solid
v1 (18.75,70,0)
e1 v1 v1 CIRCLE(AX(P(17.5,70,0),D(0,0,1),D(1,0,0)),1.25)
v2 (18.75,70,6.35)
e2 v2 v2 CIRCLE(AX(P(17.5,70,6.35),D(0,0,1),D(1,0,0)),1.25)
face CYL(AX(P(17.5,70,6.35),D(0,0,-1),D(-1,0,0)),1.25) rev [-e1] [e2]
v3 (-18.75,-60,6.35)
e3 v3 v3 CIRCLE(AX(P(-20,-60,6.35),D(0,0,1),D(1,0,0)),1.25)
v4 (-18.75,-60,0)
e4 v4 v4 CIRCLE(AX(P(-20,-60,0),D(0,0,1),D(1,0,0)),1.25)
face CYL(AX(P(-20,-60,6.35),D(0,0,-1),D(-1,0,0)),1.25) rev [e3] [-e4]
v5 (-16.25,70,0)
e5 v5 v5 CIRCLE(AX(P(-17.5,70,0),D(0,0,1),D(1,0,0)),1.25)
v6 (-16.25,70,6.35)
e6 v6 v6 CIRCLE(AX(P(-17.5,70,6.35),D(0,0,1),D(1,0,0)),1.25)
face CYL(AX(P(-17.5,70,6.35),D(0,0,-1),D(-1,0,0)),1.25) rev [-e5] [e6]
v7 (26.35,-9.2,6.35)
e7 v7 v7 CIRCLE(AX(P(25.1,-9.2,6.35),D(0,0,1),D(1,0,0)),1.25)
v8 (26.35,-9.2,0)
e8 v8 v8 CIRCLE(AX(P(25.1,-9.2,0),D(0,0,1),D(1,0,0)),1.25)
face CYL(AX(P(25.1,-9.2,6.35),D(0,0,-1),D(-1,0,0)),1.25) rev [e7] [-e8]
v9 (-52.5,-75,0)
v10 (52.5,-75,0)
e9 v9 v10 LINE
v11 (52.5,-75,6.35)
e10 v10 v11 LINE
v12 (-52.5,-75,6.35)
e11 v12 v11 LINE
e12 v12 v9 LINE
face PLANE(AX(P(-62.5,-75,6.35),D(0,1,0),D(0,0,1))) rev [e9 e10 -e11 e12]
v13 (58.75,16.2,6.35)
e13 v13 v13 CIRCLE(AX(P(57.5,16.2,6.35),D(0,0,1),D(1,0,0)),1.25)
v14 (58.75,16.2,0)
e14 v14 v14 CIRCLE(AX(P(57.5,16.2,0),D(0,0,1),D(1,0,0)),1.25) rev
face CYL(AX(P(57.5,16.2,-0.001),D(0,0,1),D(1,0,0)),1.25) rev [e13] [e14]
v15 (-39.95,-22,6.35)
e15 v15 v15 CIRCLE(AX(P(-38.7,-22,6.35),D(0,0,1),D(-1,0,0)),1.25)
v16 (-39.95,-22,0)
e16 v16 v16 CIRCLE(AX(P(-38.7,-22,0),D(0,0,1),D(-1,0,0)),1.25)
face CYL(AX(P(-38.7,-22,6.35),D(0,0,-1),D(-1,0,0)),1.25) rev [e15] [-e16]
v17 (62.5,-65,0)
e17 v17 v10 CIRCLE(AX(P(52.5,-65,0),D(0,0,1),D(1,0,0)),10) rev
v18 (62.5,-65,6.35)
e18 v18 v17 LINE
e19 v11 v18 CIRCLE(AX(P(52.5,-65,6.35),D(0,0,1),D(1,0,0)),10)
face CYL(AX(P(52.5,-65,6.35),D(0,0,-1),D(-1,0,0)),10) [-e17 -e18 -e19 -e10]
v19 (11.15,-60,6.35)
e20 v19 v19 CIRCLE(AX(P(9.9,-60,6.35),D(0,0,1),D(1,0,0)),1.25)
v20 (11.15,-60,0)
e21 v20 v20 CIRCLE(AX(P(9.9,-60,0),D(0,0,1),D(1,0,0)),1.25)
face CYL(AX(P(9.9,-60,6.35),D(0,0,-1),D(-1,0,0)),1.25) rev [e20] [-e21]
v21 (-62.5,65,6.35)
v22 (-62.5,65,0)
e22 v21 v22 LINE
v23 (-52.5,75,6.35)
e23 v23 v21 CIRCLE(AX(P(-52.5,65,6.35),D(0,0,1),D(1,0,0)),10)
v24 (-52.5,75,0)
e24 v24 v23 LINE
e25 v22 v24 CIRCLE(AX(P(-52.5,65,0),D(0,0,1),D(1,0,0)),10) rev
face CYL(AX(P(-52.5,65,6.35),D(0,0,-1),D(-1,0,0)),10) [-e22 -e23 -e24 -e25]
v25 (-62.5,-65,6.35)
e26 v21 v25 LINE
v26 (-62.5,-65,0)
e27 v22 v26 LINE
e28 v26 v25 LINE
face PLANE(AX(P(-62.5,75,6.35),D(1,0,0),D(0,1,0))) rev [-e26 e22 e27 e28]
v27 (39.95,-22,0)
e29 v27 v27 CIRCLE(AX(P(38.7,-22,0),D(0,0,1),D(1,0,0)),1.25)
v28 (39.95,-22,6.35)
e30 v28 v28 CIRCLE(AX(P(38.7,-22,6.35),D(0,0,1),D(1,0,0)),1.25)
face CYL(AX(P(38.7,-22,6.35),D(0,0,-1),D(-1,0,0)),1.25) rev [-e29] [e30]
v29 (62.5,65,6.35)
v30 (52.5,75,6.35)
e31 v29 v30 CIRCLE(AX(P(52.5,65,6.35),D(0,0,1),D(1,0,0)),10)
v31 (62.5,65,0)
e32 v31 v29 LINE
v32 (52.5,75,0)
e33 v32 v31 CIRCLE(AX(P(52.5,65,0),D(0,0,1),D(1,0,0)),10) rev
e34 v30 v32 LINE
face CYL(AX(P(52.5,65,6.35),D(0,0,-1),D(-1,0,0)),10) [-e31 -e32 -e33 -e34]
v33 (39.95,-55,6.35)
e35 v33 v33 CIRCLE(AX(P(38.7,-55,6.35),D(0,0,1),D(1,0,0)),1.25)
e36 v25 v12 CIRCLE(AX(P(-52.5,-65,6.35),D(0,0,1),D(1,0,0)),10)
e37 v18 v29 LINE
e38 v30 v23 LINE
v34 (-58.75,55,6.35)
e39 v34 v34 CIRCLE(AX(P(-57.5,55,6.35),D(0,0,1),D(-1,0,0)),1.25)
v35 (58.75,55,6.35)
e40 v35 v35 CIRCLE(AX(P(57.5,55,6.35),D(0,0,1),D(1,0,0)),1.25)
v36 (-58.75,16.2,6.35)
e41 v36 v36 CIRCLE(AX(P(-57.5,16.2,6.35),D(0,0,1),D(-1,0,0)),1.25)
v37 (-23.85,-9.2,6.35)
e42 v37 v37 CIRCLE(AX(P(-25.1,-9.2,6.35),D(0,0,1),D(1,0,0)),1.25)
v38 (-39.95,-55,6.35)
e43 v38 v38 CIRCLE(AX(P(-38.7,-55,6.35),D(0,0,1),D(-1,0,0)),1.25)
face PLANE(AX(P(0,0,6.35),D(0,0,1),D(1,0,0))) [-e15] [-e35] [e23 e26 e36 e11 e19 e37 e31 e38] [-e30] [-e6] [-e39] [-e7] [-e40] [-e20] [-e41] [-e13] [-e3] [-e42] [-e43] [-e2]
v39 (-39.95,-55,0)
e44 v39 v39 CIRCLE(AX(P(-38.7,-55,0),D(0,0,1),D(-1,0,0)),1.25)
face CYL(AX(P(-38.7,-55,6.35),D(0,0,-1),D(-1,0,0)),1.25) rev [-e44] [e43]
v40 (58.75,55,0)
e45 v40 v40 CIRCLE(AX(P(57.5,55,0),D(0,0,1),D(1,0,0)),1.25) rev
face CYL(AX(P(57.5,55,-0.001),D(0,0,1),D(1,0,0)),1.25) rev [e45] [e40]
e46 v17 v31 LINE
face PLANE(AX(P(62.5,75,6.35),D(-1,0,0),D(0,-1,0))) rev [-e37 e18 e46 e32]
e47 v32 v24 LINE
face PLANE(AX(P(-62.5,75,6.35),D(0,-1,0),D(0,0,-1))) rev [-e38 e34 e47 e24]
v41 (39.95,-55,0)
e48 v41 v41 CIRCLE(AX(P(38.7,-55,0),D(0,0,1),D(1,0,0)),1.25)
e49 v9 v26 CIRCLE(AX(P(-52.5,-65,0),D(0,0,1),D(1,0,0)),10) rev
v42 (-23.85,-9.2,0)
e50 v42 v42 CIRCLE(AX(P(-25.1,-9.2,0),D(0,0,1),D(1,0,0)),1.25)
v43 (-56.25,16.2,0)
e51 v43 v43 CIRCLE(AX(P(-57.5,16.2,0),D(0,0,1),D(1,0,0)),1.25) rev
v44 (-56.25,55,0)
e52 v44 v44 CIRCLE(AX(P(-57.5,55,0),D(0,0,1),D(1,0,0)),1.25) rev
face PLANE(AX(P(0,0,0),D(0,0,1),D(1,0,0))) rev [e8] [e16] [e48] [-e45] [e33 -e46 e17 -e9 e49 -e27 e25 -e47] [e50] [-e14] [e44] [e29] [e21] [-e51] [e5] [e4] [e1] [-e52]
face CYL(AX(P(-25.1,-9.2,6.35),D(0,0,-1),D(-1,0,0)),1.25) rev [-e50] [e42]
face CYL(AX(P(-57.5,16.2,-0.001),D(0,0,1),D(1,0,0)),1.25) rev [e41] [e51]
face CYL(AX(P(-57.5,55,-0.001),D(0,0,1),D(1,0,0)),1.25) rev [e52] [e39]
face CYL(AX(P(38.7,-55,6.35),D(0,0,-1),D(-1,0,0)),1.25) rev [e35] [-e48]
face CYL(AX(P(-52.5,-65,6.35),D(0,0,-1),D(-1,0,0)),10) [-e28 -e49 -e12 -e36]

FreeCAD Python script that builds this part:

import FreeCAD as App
import Part
import Sketcher
Q = App.Units.Quantity


def edges_at(feature, points):
    """Names of the edges that pass closest to the given points."""
    edges = feature.Shape.Edges
    near = lambda p: min(range(len(edges)), key=lambda i: edges[i].distToShape(Part.Vertex(*p))[0])
    return sorted({f"Edge{near(p) + 1}" for p in points})


def add_polygon(sketch, points):
    """Adds a closed chain of lines whose ends are joined by coincident constraints."""
    first, n = sketch.GeometryCount, len(points)
    for a, b in zip(points, points[1:] + points[:1]):
        sketch.addGeometry(Part.LineSegment(App.Vector(*a, 0), App.Vector(*b, 0)), False)
    for i in range(n):
        sketch.addConstraint(Sketcher.Constraint("Coincident", first + i, 2, first + (i + 1) % n, 1))

doc = App.newDocument("Part")
body = doc.addObject("PartDesign::Body", "Body")

sketch1 = doc.addObject("Sketcher::SketchObject", "Sketch")
body.addObject(sketch1)
sketch1.AttachmentSupport = (doc.XY_Plane, [""])
sketch1.MapMode = "FlatFace"
add_polygon(sketch1, [(-62.5, 75), (-62.5, -75), (62.5, -75), (62.5, 75)])
sketch1.addGeometry(Part.Circle(App.Vector(-38.7, -55, 0), App.Vector(0, 0, 1), 1.2), False)
sketch1.addGeometry(Part.Circle(App.Vector(-20, -60, 0), App.Vector(0, 0, 1), 1.2), False)
sketch1.addGeometry(Part.Circle(App.Vector(-38.7, -22, 0), App.Vector(0, 0, 1), 1.2), False)
sketch1.addGeometry(Part.Circle(App.Vector(-25.1, -9.2, 0), App.Vector(0, 0, 1), 1.2), False)
sketch1.addGeometry(Part.Circle(App.Vector(9.9, -60, 0), App.Vector(0, 0, 1), 1.2), False)
sketch1.addGeometry(Part.Circle(App.Vector(38.7, -55, 0), App.Vector(0, 0, 1), 1.2), False)
sketch1.addGeometry(Part.Circle(App.Vector(38.7, -22, 0), App.Vector(0, 0, 1), 1.2), False)
sketch1.addGeometry(Part.Circle(App.Vector(25.1, -9.2, 0), App.Vector(0, 0, 1), 1.2), False)
sketch1.addGeometry(Part.Circle(App.Vector(-17.5, 70, 0), App.Vector(0, 0, 1), 1.2), False)
sketch1.addGeometry(Part.Circle(App.Vector(17.5, 70, 0), App.Vector(0, 0, 1), 1.2), False)
sketch1.addConstraint(Sketcher.Constraint("Vertical", 0))
sketch1.addConstraint(Sketcher.Constraint("Horizontal", 1))
sketch1.addConstraint(Sketcher.Constraint("Vertical", 2))
sketch1.addConstraint(Sketcher.Constraint("Horizontal", 3))
sketch1.addConstraint(Sketcher.Constraint("Equal", 4, 5))
sketch1.addConstraint(Sketcher.Constraint("Equal", 5, 6))
sketch1.addConstraint(Sketcher.Constraint("Equal", 6, 7))
sketch1.addConstraint(Sketcher.Constraint("Equal", 7, 8))
sketch1.addConstraint(Sketcher.Constraint("Equal", 8, 9))
sketch1.addConstraint(Sketcher.Constraint("Equal", 9, 10))
sketch1.addConstraint(Sketcher.Constraint("Equal", 10, 11))
sketch1.addConstraint(Sketcher.Constraint("Equal", 11, 12))
sketch1.addConstraint(Sketcher.Constraint("Equal", 12, 13))
sketch1.addConstraint(Sketcher.Constraint("Symmetric", 0, 2, 2, 2, -1, 1))
sketch1.addConstraint(Sketcher.Constraint("Symmetric", 4, 3, 9, 3, -2))
sketch1.addConstraint(Sketcher.Constraint("Symmetric", 6, 3, 10, 3, -2))
sketch1.addConstraint(Sketcher.Constraint("Symmetric", 7, 3, 11, 3, -2))
sketch1.addConstraint(Sketcher.Constraint("Symmetric", 12, 3, 13, 3, -2))
sketch1.addConstraint(Sketcher.Constraint("Horizontal", 5, 3, 8, 3))
sketch1.addConstraint(Sketcher.Constraint("Vertical", 4, 3, 6, 3))
sketch1.addConstraint(Sketcher.Constraint("Diameter", 4, Q("2.5 mm")))
sketch1.addConstraint(Sketcher.Constraint("DistanceX", 1, 1, 1, 2, Q("125 mm")))
sketch1.addConstraint(Sketcher.Constraint("DistanceY", 0, 2, 0, 1, Q("150 mm")))
sketch1.addConstraint(Sketcher.Constraint("DistanceY", 4, 3, -1, 1, Q("55 mm")))
sketch1.addConstraint(Sketcher.Constraint("DistanceX", 5, 3, -1, 1, Q("20 mm")))
sketch1.addConstraint(Sketcher.Constraint("DistanceY", 5, 3, -1, 1, Q("60 mm")))
sketch1.addConstraint(Sketcher.Constraint("DistanceY", 6, 3, -1, 1, Q("22 mm")))
sketch1.addConstraint(Sketcher.Constraint("DistanceY", -1, 1, 12, 3, Q("70 mm")))
sketch1.addConstraint(Sketcher.Constraint("DistanceX", 7, 3, 8, 3, Q("35 mm")))
sketch1.addConstraint(Sketcher.Constraint("DistanceX", 12, 3, 13, 3, Q("35 mm")))
sketch1.addConstraint(Sketcher.Constraint("DistanceX", 4, 3, -1, 1, Q("38.7 mm")))
sketch1.addConstraint(Sketcher.Constraint("DistanceX", 7, 3, -1, 1, Q("25.1 mm")))
sketch1.addConstraint(Sketcher.Constraint("DistanceY", 7, 3, -1, 1, Q("9.2 mm")))
pad1 = doc.addObject("PartDesign::Pad", "Pad")
body.addObject(pad1)
pad1.Profile = sketch1
pad1.Length = 6.35
doc.recompute()

fillet = doc.addObject("PartDesign::Fillet", "Fillet")
body.addObject(fillet)
fillet.Base = (pad1, edges_at(pad1, [
    (62.5, -75, 3.175),
    (-62.5, -75, 3.175),
    (-62.5, 75, 3.175),
    (62.5, 75, 3.175),
]))
fillet.Radius = 10

sketch2 = doc.addObject("Sketcher::SketchObject", "Sketch001")
body.addObject(sketch2)
sketch2.AttachmentSupport = (doc.XY_Plane, [""])
sketch2.MapMode = "FlatFace"
sketch2.AttachmentOffset = App.Placement(App.Vector(0, 0, 6.35), App.Rotation())
sketch2.addGeometry(Part.Circle(App.Vector(57.5, 55, 0), App.Vector(0, 0, 1), 1.2), False)
sketch2.addConstraint(Sketcher.Constraint("Diameter", 0, Q("2.5 mm")))
sketch2.addConstraint(Sketcher.Constraint("DistanceY", -1, 1, 0, 3, Q("55 mm")))
sketch2.addConstraint(Sketcher.Constraint("DistanceX", -1, 1, 0, 3, Q("57.5 mm")))
pocket1 = doc.addObject("PartDesign::Pocket", "Pocket")
body.addObject(pocket1)
pocket1.Profile = sketch2
pocket1.Type = "UpToFirst"

sketch3 = doc.addObject("Sketcher::SketchObject", "Sketch002")
body.addObject(sketch3)
sketch3.AttachmentSupport = (doc.XY_Plane, [""])
sketch3.MapMode = "FlatFace"
sketch3.AttachmentOffset = App.Placement(App.Vector(0, 0, 6.35), App.Rotation())
sketch3.addGeometry(Part.Circle(App.Vector(57.5, 16.2, 0), App.Vector(0, 0, 1), 1.2), False)
sketch3.addConstraint(Sketcher.Constraint("Diameter", 0, Q("2.5 mm")))
sketch3.addConstraint(Sketcher.Constraint("DistanceX", -1, 1, 0, 3, Q("57.5 mm")))
sketch3.addConstraint(Sketcher.Constraint("DistanceY", -1, 1, 0, 3, Q("16.2 mm")))
pocket2 = doc.addObject("PartDesign::Pocket", "Pocket001")
body.addObject(pocket2)
pocket2.Profile = sketch3
pocket2.Type = "UpToFirst"

sketch4 = doc.addObject("Sketcher::SketchObject", "Sketch003")
body.addObject(sketch4)
sketch4.AttachmentSupport = (doc.XY_Plane, [""])
sketch4.MapMode = "FlatFace"
sketch4.AttachmentOffset = App.Placement(App.Vector(0, 0, 6.35), App.Rotation())
sketch4.addGeometry(Part.Circle(App.Vector(-57.5, 16.2, 0), App.Vector(0, 0, 1), 1.2), False)
sketch4.addConstraint(Sketcher.Constraint("Diameter", 0, Q("2.5 mm")))
sketch4.addConstraint(Sketcher.Constraint("DistanceX", 0, 3, -1, 1, Q("57.5 mm")))
sketch4.addConstraint(Sketcher.Constraint("DistanceY", -1, 1, 0, 3, Q("16.2 mm")))
pocket3 = doc.addObject("PartDesign::Pocket", "Pocket002")
body.addObject(pocket3)
pocket3.Profile = sketch4
pocket3.Type = "UpToFirst"

sketch5 = doc.addObject("Sketcher::SketchObject", "Sketch004")
body.addObject(sketch5)
sketch5.AttachmentSupport = (doc.XY_Plane, [""])
sketch5.MapMode = "FlatFace"
sketch5.AttachmentOffset = App.Placement(App.Vector(0, 0, 6.35), App.Rotation())
sketch5.addGeometry(Part.Circle(App.Vector(-57.5, 55, 0), App.Vector(0, 0, 1), 1.2), False)
sketch5.addConstraint(Sketcher.Constraint("Diameter", 0, Q("2.5 mm")))
sketch5.addConstraint(Sketcher.Constraint("DistanceY", -1, 1, 0, 3, Q("55 mm")))
sketch5.addConstraint(Sketcher.Constraint("DistanceX", 0, 3, -1, 1, Q("57.5 mm")))
pocket4 = doc.addObject("PartDesign::Pocket", "Pocket003")
body.addObject(pocket4)
pocket4.Profile = sketch5
pocket4.Type = "UpToFirst"

doc.recompute()
